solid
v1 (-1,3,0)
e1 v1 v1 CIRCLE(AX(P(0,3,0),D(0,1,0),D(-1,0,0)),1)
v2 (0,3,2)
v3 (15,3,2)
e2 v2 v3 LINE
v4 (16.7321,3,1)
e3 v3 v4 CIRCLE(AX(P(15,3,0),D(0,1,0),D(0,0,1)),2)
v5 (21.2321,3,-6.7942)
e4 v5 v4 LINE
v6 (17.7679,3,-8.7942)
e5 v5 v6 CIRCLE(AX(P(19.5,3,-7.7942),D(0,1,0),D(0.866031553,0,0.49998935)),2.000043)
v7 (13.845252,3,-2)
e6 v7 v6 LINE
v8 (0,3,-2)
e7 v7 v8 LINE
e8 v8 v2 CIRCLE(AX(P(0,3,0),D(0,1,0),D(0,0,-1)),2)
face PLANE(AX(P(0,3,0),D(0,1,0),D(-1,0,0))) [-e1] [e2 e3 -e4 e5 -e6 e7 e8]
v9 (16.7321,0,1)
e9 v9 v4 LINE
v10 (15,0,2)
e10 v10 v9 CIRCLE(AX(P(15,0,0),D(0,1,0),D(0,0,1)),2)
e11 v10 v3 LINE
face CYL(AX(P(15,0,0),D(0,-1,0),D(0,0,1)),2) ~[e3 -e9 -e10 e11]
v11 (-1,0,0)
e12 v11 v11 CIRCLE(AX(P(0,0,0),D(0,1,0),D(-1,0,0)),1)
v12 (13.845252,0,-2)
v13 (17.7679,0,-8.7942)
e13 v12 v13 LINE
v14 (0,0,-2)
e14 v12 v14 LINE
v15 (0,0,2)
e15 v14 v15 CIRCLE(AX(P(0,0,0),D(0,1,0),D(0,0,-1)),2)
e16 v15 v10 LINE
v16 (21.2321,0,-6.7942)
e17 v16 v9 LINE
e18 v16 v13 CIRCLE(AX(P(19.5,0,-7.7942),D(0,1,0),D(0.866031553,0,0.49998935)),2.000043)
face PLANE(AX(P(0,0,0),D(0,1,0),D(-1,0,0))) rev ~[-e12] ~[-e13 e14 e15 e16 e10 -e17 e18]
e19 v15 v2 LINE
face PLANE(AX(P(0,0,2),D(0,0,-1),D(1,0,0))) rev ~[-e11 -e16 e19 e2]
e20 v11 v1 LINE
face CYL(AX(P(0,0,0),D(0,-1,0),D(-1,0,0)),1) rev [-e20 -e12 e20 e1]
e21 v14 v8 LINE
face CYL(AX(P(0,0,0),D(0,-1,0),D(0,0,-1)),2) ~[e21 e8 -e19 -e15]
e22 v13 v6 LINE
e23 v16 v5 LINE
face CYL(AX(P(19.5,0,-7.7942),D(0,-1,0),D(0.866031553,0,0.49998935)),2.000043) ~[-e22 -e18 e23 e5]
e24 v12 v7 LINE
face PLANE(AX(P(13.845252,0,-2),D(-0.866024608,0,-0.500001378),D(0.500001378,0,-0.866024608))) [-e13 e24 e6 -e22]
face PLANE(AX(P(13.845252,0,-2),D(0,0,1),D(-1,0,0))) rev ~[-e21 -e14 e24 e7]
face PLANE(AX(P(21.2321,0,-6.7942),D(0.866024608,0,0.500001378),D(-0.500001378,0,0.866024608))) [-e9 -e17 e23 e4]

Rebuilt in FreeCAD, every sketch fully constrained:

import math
import FreeCAD as App
import Part
import Sketcher
from FreeCAD import Vector
Q = App.Units.Quantity

doc = App.newDocument("Part")
params = doc.addObject("Spreadsheet::Sheet", "Params")
for row, (alias, value) in enumerate([
    ("sketch1_diameter", "2 mm"),
    ("sketch1_radius", "2 mm"),
    ("sketch1_width", "15 mm"),
    ("sketch1_length", "9 mm"),
    ("pad1_length", "3 mm"),
], start=1):
    params.set(f"A{row}", alias)
    params.set(f"B{row}", "=" + value)
    params.setAlias(f"B{row}", alias)

body = doc.addObject("PartDesign::Body", "Body")

# Sketch on XZ plane
sketch1 = body.newObject("Sketcher::SketchObject", "Sketch")
sketch1.AttachmentSupport = (doc.getObject("XZ_Plane"), [""])
sketch1.MapMode = "FlatFace"
sketch1.addGeometry([
    Part.ArcOfCircle(Part.Circle(Vector(0, 0, 0), Vector(0, 0, 1), 2), math.radians(90), math.radians(270)),  # 0
    Part.LineSegment(Vector(0, 2, 0), Vector(15, 2, 0)),  # 1
    Part.ArcOfCircle(Part.Circle(Vector(15, 0, 0), Vector(0, 0, 1), 2), math.radians(29.999295), math.radians(90)),  # 2
    Part.LineSegment(Vector(16.7321, 1, 0), Vector(21.2321, -6.7942, 0)),  # 3
    Part.ArcOfCircle(Part.Circle(Vector(19.5, -7.7942, 0), Vector(0, 0, 1), 2.000043), math.radians(-150.000705), math.radians(29.999295)),  # 4
    Part.LineSegment(Vector(17.7679, -8.7942, 0), Vector(13.845252, -2, 0)),  # 5
    Part.LineSegment(Vector(13.845252, -2, 0), Vector(0, -2, 0)),  # 6
    Part.Circle(Vector(0, 0, 0), Vector(0, 0, 1), 1),  # 7
], False)
sketch1.addConstraint([
    Sketcher.Constraint("Tangent", 0, 1, 1, 1),
    Sketcher.Constraint("Tangent", 1, 2, 2, 2),
    Sketcher.Constraint("Tangent", 2, 1, 3, 1),
    Sketcher.Constraint("Tangent", 3, 2, 4, 2),
    Sketcher.Constraint("Tangent", 4, 1, 5, 1),
    Sketcher.Constraint("Coincident", 5, 2, 6, 1),
    Sketcher.Constraint("Tangent", 6, 2, 0, 2),
    Sketcher.Constraint("Horizontal", 1),
    Sketcher.Constraint("Horizontal", 6),
    Sketcher.Constraint("Coincident", 0, 3, -1, 1),
    Sketcher.Constraint("Coincident", 7, 3, -1, 1),
    Sketcher.Constraint("Equal", 0, 2),
    Sketcher.Constraint("Equal", 2, 4),
    Sketcher.Constraint("Parallel", 3, 5),
    Sketcher.Constraint("Diameter", 7, Q("2 mm")),
    Sketcher.Constraint("Radius", 0, Q("2 mm")),
    Sketcher.Constraint("DistanceX", 1, 1, 1, 2, Q("15 mm")),
    Sketcher.Constraint("Angle", 5, Q("120 deg")),
    Sketcher.Constraint("Distance", 3, Q("9 mm")),
])
sketch1.setExpression("Constraints[14]", "Params.sketch1_diameter")
sketch1.setExpression("Constraints[15]", "Params.sketch1_radius")
sketch1.setExpression("Constraints[16]", "Params.sketch1_width")
sketch1.setExpression("Constraints[18]", "Params.sketch1_length")
pad1 = body.newObject("PartDesign::Pad", "Pad")
pad1.Profile = sketch1
pad1.setExpression("Length", "Params.pad1_length")
pad1.Reversed = True

doc.recompute()
